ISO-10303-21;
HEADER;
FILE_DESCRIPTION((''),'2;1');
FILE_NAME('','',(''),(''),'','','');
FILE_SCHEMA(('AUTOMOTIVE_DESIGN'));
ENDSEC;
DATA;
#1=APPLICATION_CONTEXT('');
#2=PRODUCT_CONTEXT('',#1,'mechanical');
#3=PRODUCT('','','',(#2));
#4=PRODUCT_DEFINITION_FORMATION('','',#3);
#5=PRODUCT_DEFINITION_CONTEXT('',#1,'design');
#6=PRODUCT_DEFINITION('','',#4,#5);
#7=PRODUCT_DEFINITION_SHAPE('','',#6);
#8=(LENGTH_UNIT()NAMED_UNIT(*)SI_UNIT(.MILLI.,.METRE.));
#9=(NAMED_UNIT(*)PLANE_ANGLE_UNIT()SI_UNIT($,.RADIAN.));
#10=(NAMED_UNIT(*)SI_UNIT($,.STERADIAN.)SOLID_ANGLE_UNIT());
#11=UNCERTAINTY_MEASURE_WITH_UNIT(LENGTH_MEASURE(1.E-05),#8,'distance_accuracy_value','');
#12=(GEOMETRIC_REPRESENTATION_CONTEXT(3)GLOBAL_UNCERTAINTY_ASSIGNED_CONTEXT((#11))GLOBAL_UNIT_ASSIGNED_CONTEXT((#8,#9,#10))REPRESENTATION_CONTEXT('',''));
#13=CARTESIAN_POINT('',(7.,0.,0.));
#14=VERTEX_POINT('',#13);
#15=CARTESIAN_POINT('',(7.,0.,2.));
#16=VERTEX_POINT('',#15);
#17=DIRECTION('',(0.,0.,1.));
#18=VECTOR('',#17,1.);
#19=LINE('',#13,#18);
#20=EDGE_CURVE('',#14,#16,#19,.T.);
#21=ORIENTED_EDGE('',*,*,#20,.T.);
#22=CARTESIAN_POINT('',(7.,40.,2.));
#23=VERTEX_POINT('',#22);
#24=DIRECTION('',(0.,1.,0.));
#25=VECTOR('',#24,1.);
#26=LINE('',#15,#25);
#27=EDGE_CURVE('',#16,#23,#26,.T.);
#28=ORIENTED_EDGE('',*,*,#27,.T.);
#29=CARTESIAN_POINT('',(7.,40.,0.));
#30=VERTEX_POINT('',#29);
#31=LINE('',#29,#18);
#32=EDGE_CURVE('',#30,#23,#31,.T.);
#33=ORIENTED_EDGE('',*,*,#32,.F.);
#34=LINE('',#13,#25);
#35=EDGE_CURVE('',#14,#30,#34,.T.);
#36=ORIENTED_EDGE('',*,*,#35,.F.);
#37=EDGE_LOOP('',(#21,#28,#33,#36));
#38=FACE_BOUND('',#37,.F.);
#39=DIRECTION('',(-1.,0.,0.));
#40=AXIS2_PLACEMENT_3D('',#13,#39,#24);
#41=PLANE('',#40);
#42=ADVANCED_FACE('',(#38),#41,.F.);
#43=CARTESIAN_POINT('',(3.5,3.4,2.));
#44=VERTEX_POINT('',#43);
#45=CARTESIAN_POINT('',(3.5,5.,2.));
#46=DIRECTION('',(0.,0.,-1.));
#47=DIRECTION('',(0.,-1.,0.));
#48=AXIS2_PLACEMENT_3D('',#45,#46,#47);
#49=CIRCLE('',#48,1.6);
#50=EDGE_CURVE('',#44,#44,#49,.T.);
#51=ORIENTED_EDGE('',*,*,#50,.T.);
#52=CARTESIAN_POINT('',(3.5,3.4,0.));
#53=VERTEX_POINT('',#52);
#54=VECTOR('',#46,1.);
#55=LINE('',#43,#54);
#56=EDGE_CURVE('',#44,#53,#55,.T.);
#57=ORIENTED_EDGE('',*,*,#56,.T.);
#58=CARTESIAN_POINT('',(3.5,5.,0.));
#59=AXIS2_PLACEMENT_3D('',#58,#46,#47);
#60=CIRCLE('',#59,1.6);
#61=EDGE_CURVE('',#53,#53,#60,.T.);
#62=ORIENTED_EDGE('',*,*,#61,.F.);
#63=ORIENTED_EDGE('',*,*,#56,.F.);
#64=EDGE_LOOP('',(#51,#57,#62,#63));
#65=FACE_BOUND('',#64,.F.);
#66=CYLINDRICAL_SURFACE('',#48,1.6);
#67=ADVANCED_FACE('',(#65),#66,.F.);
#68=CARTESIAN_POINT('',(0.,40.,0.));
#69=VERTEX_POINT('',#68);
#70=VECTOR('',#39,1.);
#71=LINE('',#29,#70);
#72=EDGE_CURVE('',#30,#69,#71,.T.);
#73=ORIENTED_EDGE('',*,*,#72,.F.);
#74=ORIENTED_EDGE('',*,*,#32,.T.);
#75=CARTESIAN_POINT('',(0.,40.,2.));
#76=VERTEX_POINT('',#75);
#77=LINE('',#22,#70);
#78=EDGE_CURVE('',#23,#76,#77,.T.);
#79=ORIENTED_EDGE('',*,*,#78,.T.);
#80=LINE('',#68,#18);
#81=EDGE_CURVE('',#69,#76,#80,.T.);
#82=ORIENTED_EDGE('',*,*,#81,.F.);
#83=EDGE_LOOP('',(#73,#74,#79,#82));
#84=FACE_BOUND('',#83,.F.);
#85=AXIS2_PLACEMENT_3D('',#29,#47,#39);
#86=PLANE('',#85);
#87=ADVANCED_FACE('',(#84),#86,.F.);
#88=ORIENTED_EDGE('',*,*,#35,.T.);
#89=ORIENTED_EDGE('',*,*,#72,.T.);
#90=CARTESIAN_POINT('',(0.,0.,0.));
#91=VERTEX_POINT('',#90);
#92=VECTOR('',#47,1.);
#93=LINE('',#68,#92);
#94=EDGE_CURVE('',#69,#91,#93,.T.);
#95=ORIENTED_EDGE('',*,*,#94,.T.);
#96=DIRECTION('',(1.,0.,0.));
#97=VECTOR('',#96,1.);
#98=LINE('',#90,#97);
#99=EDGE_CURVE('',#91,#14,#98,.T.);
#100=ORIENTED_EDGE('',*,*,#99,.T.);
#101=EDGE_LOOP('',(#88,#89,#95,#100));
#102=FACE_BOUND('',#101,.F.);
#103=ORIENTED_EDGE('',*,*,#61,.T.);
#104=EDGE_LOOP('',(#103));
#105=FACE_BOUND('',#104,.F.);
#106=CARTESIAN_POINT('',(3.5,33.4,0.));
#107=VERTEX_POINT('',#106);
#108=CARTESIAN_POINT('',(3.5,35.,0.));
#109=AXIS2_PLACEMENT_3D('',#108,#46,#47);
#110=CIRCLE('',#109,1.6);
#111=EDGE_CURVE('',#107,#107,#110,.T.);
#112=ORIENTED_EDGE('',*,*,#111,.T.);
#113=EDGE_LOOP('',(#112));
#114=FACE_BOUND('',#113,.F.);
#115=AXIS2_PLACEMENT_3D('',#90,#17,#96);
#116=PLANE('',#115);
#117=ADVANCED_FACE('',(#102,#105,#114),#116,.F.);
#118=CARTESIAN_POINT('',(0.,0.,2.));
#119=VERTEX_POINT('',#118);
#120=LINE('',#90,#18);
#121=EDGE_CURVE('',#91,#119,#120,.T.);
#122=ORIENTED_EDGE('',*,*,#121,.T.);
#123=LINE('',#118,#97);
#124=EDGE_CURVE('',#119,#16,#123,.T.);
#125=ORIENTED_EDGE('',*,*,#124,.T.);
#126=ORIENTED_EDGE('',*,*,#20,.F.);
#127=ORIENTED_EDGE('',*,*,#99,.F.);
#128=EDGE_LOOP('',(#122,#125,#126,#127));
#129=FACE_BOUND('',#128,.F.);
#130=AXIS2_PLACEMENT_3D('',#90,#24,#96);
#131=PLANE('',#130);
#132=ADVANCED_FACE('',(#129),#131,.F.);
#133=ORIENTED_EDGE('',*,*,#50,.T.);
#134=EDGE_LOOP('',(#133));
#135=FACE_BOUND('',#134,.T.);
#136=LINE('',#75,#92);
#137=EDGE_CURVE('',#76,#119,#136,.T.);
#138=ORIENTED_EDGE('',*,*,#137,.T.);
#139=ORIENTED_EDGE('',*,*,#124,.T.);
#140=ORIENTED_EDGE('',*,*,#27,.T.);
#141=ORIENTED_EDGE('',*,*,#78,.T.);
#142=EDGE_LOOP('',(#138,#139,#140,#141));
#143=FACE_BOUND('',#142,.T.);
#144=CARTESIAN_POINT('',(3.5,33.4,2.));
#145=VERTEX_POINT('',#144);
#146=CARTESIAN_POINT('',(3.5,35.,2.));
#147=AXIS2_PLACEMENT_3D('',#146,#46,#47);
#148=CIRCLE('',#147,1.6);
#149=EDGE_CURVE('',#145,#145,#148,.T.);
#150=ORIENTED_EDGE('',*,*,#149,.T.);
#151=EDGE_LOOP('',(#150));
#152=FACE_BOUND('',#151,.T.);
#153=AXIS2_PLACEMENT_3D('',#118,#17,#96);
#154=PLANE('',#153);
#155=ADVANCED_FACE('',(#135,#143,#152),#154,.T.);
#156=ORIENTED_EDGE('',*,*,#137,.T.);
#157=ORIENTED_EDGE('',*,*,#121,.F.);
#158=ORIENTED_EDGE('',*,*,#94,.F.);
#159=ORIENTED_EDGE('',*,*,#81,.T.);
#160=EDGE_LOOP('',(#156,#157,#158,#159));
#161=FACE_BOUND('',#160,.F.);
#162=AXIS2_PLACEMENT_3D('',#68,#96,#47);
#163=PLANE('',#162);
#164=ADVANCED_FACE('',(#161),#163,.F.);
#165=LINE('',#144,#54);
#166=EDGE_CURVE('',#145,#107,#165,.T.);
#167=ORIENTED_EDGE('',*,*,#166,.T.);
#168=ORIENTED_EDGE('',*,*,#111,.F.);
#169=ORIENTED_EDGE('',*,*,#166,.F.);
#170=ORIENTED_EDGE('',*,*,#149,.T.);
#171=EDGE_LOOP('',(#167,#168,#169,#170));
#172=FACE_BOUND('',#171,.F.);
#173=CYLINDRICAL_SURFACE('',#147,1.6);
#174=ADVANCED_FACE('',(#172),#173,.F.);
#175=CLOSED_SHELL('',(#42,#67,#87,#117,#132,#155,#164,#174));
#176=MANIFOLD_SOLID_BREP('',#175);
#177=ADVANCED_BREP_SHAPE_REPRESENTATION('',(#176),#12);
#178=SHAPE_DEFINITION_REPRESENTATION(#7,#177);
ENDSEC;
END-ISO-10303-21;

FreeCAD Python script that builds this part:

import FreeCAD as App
import Part
import Sketcher
from FreeCAD import Vector

doc = App.newDocument("Part")
body = doc.addObject("PartDesign::Body", "Body")

sketch1 = body.newObject("Sketcher::SketchObject", "Sketch")
sketch1.AttachmentSupport = (doc.getObject("XY_Plane"), [""])
sketch1.MapMode = "FlatFace"
sketch1.addGeometry([
    Part.LineSegment(Vector(0, 40, 0), Vector(0, 0, 0)),
    Part.LineSegment(Vector(0, 0, 0), Vector(7, 0, 0)),
    Part.LineSegment(Vector(7, 0, 0), Vector(7, 40, 0)),
    Part.LineSegment(Vector(7, 40, 0), Vector(0, 40, 0)),
], False)
sketch1.addConstraint([
    Sketcher.Constraint("Coincident", 0, 2, 1, 1),
    Sketcher.Constraint("Coincident", 1, 2, 2, 1),
    Sketcher.Constraint("Coincident", 2, 2, 3, 1),
    Sketcher.Constraint("Coincident", 3, 2, 0, 1),
    Sketcher.Constraint("Vertical", 0),
    Sketcher.Constraint("Horizontal", 1),
    Sketcher.Constraint("Vertical", 2),
    Sketcher.Constraint("Horizontal", 3),
    Sketcher.Constraint("Coincident", 0, 2, -1, 1),
    Sketcher.Constraint("DistanceX", 1, 1, 1, 2, 7.0),
    Sketcher.Constraint("DistanceY", 0, 2, 0, 1, 40.0),
])
pad1 = body.newObject("PartDesign::Pad", "Pad")
pad1.Profile = sketch1
pad1.Length = 2

sketch2 = body.newObject("Sketcher::SketchObject", "Sketch001")
sketch2.AttachmentSupport = (doc.getObject("XY_Plane"), [""])
sketch2.MapMode = "FlatFace"
sketch2.AttachmentOffset = App.Placement(Vector(0, 0, 2), App.Rotation())
sketch2.addGeometry([
    Part.Circle(Vector(3.5, 35, 0), Vector(0, 0, 1), 1.6),
    Part.Circle(Vector(3.5, 5, 0), Vector(0, 0, 1), 1.6),
], False)
sketch2.addConstraint([
    Sketcher.Constraint("Equal", 0, 1),
    Sketcher.Constraint("Vertical", 0, 3, 1, 3),
    Sketcher.Constraint("Diameter", 0, 3.2),
    Sketcher.Constraint("DistanceY", -1, 1, 0, 3, 35.0),
    Sketcher.Constraint("DistanceY", -1, 1, 1, 3, 5.0),
    Sketcher.Constraint("DistanceX", -1, 1, 0, 3, 3.5),
])
doc.recompute()
hole = body.newObject("PartDesign::Hole", "Hole")
hole.Profile = sketch2
hole.ThreadType = "None"
hole.Diameter = 3.2
hole.DepthType = "ThroughAll"

doc.recompute()
